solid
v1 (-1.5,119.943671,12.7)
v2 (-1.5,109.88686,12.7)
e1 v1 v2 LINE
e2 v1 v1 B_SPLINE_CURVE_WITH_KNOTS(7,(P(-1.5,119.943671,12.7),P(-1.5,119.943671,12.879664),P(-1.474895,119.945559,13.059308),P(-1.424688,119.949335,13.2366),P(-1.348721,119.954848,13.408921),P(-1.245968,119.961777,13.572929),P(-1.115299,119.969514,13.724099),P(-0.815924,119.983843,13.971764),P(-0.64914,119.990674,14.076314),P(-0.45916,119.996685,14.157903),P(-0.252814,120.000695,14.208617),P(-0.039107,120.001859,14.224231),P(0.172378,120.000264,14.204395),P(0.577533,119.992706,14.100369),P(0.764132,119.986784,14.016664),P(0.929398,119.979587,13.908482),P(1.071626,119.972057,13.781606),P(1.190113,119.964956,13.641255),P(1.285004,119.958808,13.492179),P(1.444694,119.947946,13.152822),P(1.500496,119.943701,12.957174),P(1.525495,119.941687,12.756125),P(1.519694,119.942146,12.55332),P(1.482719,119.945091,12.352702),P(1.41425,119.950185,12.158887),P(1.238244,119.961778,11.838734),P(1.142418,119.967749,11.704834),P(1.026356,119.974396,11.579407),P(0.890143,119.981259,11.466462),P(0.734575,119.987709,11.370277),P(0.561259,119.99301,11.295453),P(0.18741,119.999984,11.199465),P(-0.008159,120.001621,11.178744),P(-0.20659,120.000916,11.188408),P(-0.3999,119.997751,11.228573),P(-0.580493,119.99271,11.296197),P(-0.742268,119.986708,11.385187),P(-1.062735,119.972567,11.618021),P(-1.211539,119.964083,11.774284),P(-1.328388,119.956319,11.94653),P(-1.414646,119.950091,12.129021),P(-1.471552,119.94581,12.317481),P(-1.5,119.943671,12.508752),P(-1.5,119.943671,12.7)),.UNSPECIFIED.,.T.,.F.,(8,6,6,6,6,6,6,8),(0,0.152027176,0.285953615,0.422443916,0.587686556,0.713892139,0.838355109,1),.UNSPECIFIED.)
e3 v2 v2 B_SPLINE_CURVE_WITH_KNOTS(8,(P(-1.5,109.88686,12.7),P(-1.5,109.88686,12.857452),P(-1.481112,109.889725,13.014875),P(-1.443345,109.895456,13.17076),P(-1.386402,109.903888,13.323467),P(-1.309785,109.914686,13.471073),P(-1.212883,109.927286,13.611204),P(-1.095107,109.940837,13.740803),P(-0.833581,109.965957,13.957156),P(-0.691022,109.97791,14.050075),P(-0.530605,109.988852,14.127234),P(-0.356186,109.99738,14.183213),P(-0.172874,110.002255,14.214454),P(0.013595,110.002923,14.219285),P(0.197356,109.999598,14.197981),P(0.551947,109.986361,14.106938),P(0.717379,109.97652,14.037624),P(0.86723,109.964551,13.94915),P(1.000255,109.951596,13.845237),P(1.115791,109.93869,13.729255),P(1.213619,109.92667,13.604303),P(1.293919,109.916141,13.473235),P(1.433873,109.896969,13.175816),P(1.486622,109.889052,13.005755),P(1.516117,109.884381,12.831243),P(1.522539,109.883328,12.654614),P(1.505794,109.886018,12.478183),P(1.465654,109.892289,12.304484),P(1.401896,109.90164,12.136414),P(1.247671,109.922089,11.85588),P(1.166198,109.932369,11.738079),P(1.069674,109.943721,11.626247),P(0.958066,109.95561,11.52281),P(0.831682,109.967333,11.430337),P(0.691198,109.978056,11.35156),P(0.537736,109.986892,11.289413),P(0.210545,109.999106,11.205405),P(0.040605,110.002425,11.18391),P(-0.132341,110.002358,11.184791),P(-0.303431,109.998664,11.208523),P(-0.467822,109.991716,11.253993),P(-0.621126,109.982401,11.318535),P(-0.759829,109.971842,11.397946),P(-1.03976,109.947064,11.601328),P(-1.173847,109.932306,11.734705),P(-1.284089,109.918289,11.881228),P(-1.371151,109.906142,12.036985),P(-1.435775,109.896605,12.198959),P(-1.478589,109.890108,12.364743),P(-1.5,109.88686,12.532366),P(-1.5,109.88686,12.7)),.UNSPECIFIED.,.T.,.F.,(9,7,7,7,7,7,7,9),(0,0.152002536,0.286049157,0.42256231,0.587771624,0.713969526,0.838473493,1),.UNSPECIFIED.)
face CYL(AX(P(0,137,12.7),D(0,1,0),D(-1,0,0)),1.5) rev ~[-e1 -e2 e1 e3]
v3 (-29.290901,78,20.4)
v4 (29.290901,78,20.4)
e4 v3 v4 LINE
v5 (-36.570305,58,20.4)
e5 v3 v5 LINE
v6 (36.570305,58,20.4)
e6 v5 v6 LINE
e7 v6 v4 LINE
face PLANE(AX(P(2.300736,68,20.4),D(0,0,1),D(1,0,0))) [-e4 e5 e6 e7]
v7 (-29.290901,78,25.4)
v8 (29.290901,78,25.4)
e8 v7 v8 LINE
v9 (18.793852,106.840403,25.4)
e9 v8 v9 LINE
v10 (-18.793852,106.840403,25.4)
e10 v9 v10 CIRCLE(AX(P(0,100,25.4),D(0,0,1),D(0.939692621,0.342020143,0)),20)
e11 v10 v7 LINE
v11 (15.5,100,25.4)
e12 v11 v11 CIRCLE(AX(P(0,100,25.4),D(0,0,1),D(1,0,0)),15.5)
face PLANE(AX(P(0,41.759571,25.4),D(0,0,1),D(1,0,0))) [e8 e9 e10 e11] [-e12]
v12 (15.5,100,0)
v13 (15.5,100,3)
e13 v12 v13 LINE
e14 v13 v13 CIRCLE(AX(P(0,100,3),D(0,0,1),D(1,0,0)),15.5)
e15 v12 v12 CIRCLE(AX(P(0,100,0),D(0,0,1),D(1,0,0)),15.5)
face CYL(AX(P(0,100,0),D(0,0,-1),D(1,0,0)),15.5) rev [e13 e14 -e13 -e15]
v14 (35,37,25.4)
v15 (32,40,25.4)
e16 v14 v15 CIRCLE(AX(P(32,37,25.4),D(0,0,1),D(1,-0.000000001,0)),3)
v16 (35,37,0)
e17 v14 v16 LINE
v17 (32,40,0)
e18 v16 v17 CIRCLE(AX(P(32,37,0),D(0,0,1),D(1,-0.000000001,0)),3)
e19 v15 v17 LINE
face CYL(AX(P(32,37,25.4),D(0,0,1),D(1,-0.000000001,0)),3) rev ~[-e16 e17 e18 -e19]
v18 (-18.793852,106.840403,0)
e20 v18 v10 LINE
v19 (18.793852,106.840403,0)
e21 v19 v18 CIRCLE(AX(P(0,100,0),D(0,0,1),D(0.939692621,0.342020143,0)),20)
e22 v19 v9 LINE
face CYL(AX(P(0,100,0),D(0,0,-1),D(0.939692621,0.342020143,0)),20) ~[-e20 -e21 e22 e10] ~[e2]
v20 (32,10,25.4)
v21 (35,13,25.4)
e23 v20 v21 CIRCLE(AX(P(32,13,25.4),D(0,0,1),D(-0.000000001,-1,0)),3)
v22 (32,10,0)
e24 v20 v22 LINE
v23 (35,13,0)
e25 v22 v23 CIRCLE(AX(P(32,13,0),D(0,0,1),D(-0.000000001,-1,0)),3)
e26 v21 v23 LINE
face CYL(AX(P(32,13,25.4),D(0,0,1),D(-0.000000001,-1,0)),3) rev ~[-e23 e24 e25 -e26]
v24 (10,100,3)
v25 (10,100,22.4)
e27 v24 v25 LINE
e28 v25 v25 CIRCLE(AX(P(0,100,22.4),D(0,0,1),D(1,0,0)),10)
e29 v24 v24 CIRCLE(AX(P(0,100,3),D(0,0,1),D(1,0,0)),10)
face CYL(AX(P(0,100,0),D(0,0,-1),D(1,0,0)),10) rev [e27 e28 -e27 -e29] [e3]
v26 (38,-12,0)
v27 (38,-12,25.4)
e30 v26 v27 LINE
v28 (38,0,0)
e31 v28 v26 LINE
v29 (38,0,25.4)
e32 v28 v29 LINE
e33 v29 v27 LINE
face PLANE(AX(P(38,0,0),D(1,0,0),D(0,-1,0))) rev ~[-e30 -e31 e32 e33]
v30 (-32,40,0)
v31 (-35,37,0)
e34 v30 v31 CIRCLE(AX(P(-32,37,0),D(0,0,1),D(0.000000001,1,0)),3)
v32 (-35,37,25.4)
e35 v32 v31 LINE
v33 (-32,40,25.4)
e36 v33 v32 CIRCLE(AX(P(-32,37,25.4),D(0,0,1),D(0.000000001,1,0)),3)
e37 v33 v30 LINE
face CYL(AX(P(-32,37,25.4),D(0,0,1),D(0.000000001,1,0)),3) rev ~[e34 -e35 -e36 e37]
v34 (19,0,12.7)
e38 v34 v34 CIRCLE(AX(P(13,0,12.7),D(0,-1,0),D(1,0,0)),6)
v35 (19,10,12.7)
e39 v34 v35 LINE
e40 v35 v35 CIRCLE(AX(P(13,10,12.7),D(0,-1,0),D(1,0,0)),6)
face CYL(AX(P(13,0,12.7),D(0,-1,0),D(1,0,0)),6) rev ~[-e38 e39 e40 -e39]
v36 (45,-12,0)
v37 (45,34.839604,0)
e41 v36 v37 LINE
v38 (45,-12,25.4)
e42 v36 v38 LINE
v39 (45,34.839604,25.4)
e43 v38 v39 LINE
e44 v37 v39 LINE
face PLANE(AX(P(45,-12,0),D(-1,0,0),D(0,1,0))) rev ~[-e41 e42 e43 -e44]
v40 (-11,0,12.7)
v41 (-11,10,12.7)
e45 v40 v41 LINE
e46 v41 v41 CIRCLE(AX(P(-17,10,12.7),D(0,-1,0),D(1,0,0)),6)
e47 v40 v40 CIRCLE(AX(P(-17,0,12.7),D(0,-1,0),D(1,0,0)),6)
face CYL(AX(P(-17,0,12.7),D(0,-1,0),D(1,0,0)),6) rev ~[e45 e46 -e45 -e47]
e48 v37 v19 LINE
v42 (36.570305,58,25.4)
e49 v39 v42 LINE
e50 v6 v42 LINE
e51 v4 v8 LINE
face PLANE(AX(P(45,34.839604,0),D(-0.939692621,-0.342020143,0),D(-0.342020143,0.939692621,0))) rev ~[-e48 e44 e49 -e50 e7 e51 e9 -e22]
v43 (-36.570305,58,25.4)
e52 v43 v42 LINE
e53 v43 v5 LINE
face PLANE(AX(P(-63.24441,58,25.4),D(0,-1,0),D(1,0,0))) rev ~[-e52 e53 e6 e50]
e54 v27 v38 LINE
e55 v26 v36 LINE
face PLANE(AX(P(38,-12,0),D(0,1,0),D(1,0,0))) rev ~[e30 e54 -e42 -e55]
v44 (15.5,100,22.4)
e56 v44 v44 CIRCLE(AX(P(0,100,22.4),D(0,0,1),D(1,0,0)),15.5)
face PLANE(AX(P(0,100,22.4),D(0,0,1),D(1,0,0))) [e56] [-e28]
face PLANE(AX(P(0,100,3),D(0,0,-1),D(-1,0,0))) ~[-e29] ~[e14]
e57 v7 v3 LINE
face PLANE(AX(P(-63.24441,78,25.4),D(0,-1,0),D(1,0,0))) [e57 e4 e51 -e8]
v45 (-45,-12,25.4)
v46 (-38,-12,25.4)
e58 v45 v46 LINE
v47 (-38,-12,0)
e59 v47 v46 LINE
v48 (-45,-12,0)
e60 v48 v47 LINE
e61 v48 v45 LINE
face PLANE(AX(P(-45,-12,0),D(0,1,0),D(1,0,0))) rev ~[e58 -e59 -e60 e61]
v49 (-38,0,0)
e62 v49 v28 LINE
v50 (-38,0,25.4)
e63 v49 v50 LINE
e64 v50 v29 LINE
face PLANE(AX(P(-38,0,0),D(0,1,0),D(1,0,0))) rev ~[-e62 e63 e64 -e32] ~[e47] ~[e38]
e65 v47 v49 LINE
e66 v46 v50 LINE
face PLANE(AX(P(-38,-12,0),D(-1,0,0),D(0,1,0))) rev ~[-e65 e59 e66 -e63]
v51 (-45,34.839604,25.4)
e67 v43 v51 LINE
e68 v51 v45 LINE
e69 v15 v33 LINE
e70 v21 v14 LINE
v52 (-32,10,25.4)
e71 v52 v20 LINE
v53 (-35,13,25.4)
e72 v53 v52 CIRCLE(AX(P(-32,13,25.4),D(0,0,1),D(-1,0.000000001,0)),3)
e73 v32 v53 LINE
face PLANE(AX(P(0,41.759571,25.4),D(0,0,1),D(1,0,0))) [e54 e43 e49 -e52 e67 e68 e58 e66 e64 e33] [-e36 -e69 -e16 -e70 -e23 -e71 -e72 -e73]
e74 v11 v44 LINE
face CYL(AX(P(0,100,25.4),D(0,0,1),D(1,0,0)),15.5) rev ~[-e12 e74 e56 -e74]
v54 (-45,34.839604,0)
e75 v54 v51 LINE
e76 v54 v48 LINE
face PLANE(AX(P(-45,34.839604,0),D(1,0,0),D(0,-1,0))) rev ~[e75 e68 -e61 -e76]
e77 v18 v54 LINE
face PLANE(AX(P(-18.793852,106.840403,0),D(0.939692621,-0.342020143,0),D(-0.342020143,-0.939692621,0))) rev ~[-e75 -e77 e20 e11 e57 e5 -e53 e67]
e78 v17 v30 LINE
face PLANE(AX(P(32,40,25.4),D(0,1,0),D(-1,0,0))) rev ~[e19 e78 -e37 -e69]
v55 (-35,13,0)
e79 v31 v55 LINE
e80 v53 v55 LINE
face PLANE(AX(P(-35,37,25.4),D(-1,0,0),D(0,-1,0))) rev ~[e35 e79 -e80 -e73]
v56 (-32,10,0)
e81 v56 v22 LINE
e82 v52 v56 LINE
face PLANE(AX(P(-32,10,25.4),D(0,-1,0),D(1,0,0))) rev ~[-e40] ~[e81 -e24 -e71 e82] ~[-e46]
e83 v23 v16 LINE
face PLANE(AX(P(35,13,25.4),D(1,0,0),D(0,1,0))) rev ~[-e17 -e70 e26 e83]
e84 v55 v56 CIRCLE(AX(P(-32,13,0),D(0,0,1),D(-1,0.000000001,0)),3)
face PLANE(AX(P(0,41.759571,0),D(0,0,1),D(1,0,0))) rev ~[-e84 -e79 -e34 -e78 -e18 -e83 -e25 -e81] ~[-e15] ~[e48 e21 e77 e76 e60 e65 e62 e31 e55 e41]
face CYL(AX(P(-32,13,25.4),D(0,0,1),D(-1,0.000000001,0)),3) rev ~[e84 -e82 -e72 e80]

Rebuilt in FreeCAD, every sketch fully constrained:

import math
import FreeCAD as App
import Part
import Sketcher

V = App.Vector
Q = App.Units.Quantity

doc = App.newDocument("Part")
body = doc.addObject("PartDesign::Body", "Body")

# Sketch on XY plane
sketch1 = body.newObject("Sketcher::SketchObject", "Sketch")
sketch1.AttachmentSupport = (doc.getObject("XY_Plane"), [""])
sketch1.MapMode = "FlatFace"
sketch1.addGeometry([
    Part.LineSegment(V(-38, 0, 0), V(38, 0, 0)),  # 0
    Part.LineSegment(V(38, 0, 0), V(38, -12, 0)),  # 1
    Part.LineSegment(V(38, -12, 0), V(45, -12, 0)),  # 2
    Part.LineSegment(V(45, -12, 0), V(45, 35, 0)),  # 3
    Part.LineSegment(V(45, 35, 0), V(19, 107, 0)),  # 4
    Part.ArcOfCircle(Part.Circle(V(0, 100, 0), V(0, 0, 1), 20), math.radians(20), math.radians(160)),  # 5
    Part.LineSegment(V(-19, 107, 0), V(-45, 35, 0)),  # 6
    Part.LineSegment(V(-45, 35, 0), V(-45, -12, 0)),  # 7
    Part.LineSegment(V(-45, -12, 0), V(-38, -12, 0)),  # 8
    Part.LineSegment(V(-38, -12, 0), V(-38, 0, 0)),  # 9
    Part.Circle(V(0, 100, 0), V(0, 0, 1), 10),  # 10
], False)
sketch1.addConstraint([
    Sketcher.Constraint("Coincident", 0, 2, 1, 1),
    Sketcher.Constraint("Coincident", 1, 2, 2, 1),
    Sketcher.Constraint("Coincident", 2, 2, 3, 1),
    Sketcher.Constraint("Coincident", 3, 2, 4, 1),
    Sketcher.Constraint("Tangent", 4, 2, 5, 1),
    Sketcher.Constraint("Tangent", 5, 2, 6, 1),
    Sketcher.Constraint("Coincident", 6, 2, 7, 1),
    Sketcher.Constraint("Coincident", 7, 2, 8, 1),
    Sketcher.Constraint("Coincident", 8, 2, 9, 1),
    Sketcher.Constraint("Coincident", 9, 2, 0, 1),
    Sketcher.Constraint("Horizontal", 0),
    Sketcher.Constraint("Vertical", 1),
    Sketcher.Constraint("Horizontal", 2),
    Sketcher.Constraint("Vertical", 3),
    Sketcher.Constraint("Vertical", 7),
    Sketcher.Constraint("Horizontal", 8),
    Sketcher.Constraint("Vertical", 9),
    Sketcher.Constraint("Coincident", 10, 3, 5, 3),
    Sketcher.Constraint("Symmetric", 0, 2, 9, 2, -1, 1),
    Sketcher.Constraint("Symmetric", 4, 2, 5, 2, -2),
    Sketcher.Constraint("Symmetric", 2, 2, 7, 2, -2),
    Sketcher.Constraint("Diameter", 10, Q("20 mm")),
    Sketcher.Constraint("Radius", 5, Q("20 mm")),
    Sketcher.Constraint("DistanceX", 0, 1, 0, 2, Q("76 mm")),
    Sketcher.Constraint("DistanceX", 2, 1, 2, 2, Q("7 mm")),
    Sketcher.Constraint("DistanceY", 1, 2, 1, 1, Q("12 mm")),
    Sketcher.Constraint("Angle", 4, Q("110 deg")),
    Sketcher.Constraint("DistanceY", -1, 1, 5, 3, Q("100 mm")),
])
pad1 = body.newObject("PartDesign::Pad", "Pad")
pad1.Profile = sketch1
pad1.Length = 25.4

# Sketch on XY plane
sketch2 = body.newObject("Sketcher::SketchObject", "Sketch001")
sketch2.AttachmentSupport = (doc.getObject("XY_Plane"), [""])
sketch2.MapMode = "FlatFace"
sketch2.AttachmentOffset = App.Placement(V(0, 0, 25.4), App.Rotation())
sketch2.addGeometry([
    Part.LineSegment(V(-32, 10, 0), V(32, 10, 0)),  # 0
    Part.ArcOfCircle(Part.Circle(V(32, 13, 0), V(0, 0, 1), 3), math.radians(-90), math.radians(0)),  # 1
    Part.LineSegment(V(35, 13, 0), V(35, 37, 0)),  # 2
    Part.ArcOfCircle(Part.Circle(V(32, 37, 0), V(0, 0, 1), 3), math.radians(0), math.radians(90)),  # 3
    Part.LineSegment(V(32, 40, 0), V(-32, 40, 0)),  # 4
    Part.ArcOfCircle(Part.Circle(V(-32, 37, 0), V(0, 0, 1), 3), math.radians(90), math.radians(180)),  # 5
    Part.LineSegment(V(-35, 37, 0), V(-35, 13, 0)),  # 6
    Part.ArcOfCircle(Part.Circle(V(-32, 13, 0), V(0, 0, 1), 3), math.radians(180), math.radians(270)),  # 7
], False)
sketch2.addConstraint([
    Sketcher.Constraint("Tangent", 0, 2, 1, 1),
    Sketcher.Constraint("Tangent", 1, 2, 2, 1),
    Sketcher.Constraint("Tangent", 2, 2, 3, 1),
    Sketcher.Constraint("Tangent", 3, 2, 4, 1),
    Sketcher.Constraint("Tangent", 4, 2, 5, 1),
    Sketcher.Constraint("Tangent", 5, 2, 6, 1),
    Sketcher.Constraint("Tangent", 6, 2, 7, 1),
    Sketcher.Constraint("Tangent", 7, 2, 0, 1),
    Sketcher.Constraint("Horizontal", 0),
    Sketcher.Constraint("Vertical", 2),
    Sketcher.Constraint("Horizontal", 4),
    Sketcher.Constraint("Vertical", 6),
    Sketcher.Constraint("Equal", 1, 3),
    Sketcher.Constraint("Equal", 3, 5),
    Sketcher.Constraint("Equal", 5, 7),
    Sketcher.Constraint("Radius", 1, Q("3 mm")),
    Sketcher.Constraint("DistanceX", 0, 1, 0, 2, Q("64 mm")),
    Sketcher.Constraint("DistanceY", 2, 1, 2, 2, Q("24 mm")),
    Sketcher.Constraint("DistanceX", -1, 1, 1, 3, Q("32 mm")),
    Sketcher.Constraint("DistanceY", -1, 1, 1, 3, Q("13 mm")),
])
pocket1 = body.newObject("PartDesign::Pocket", "Pocket")
pocket1.Profile = sketch2
pocket1.Type = "ThroughAll"

# Sketch on XZ plane
sketch3 = body.newObject("Sketcher::SketchObject", "Sketch002")
sketch3.AttachmentSupport = (doc.getObject("XZ_Plane"), [""])
sketch3.MapMode = "FlatFace"
sketch3.addGeometry(Part.Circle(V(13, 13, 0), V(0, 0, 1), 6), False)
sketch3.addConstraint([
    Sketcher.Constraint("Diameter", 0, Q("12 mm")),
    Sketcher.Constraint("DistanceX", -1, 1, 0, 3, Q("13 mm")),
    Sketcher.Constraint("DistanceY", -1, 1, 0, 3, Q("12.7 mm")),
])
pocket2 = body.newObject("PartDesign::Pocket", "Pocket001")
pocket2.Profile = sketch3
pocket2.Type = "UpToFirst"

# Sketch on XZ plane
sketch4 = body.newObject("Sketcher::SketchObject", "Sketch003")
sketch4.AttachmentSupport = (doc.getObject("XZ_Plane"), [""])
sketch4.MapMode = "FlatFace"
sketch4.addGeometry(Part.Circle(V(-17, 13, 0), V(0, 0, 1), 6), False)
sketch4.addConstraint([
    Sketcher.Constraint("Diameter", 0, Q("12 mm")),
    Sketcher.Constraint("DistanceX", 0, 3, -1, 1, Q("17 mm")),
    Sketcher.Constraint("DistanceY", -1, 1, 0, 3, Q("12.7 mm")),
])
pocket3 = body.newObject("PartDesign::Pocket", "Pocket002")
pocket3.Profile = sketch4
pocket3.Type = "UpToFirst"

# Sketch on XZ plane
sketch5 = body.newObject("Sketcher::SketchObject", "Sketch004")
sketch5.AttachmentSupport = (doc.getObject("XZ_Plane"), [""])
sketch5.MapMode = "FlatFace"
sketch5.AttachmentOffset = App.Placement(V(0, 0, -137), App.Rotation())
sketch5.addGeometry(Part.Circle(V(0, 12.7, 0), V(0, 0, 1), 1.5), False)
sketch5.addConstraint([
    Sketcher.Constraint("PointOnObject", 0, 3, -2),
    Sketcher.Constraint("Diameter", 0, Q("3 mm")),
    Sketcher.Constraint("DistanceY", -1, 1, 0, 3, Q("12.7 mm")),
])
pocket4 = body.newObject("PartDesign::Pocket", "Pocket003")
pocket4.Profile = sketch5
pocket4.Length = 27.11314
pocket4.Reversed = True

# Sketch on XY plane
sketch6 = body.newObject("Sketcher::SketchObject", "Sketch005")
sketch6.AttachmentSupport = (doc.getObject("XY_Plane"), [""])
sketch6.MapMode = "FlatFace"
sketch6.AttachmentOffset = App.Placement(V(0, 0, 25.4), App.Rotation())
sketch6.addGeometry([
    Part.LineSegment(V(-63, 78, 0), V(-63, 58, 0)),
    Part.LineSegment(V(-63, 58, 0), V(68, 58, 0)),
    Part.LineSegment(V(68, 58, 0), V(68, 78, 0)),
    Part.LineSegment(V(68, 78, 0), V(-63, 78, 0)),
], False)
sketch6.addConstraint([
    Sketcher.Constraint("Coincident", 0, 2, 1, 1),
    Sketcher.Constraint("Coincident", 1, 2, 2, 1),
    Sketcher.Constraint("Coincident", 2, 2, 3, 1),
    Sketcher.Constraint("Coincident", 3, 2, 0, 1),
    Sketcher.Constraint("Vertical", 0),
    Sketcher.Constraint("Horizontal", 1),
    Sketcher.Constraint("Vertical", 2),
    Sketcher.Constraint("Horizontal", 3),
    Sketcher.Constraint("DistanceY", 0, 2, 0, 1, Q("20 mm")),
    Sketcher.Constraint("DistanceY", -1, 1, 0, 2, Q("58 mm")),
    Sketcher.Constraint("DistanceX", 1, 1, 1, 2, Q("131.090292 mm")),
    Sketcher.Constraint("DistanceX", 0, 2, -1, 1, Q("63.24441 mm")),
])
pocket5 = body.newObject("PartDesign::Pocket", "Pocket004")
pocket5.Profile = sketch6
pocket5.Length = 5

# Sketch on XY plane
sketch7 = body.newObject("Sketcher::SketchObject", "Sketch006")
sketch7.AttachmentSupport = (doc.getObject("XY_Plane"), [""])
sketch7.MapMode = "FlatFace"
sketch7.AttachmentOffset = App.Placement(V(0, 0, 25.4), App.Rotation())
sketch7.addGeometry([
    Part.Circle(V(0, 100, 0), V(0, 0, 1), 16),
    Part.Circle(V(0, 100, 0), V(0, 0, 1), 10),
], False)
sketch7.addConstraint([
    Sketcher.Constraint("Coincident", 1, 3, 0, 3),
    Sketcher.Constraint("PointOnObject", 0, 3, -2),
    Sketcher.Constraint("Diameter", 0, Q("31 mm")),
    Sketcher.Constraint("Diameter", 1, Q("20 mm")),
    Sketcher.Constraint("DistanceY", -1, 1, 0, 3, Q("100 mm")),
])
pocket6 = body.newObject("PartDesign::Pocket", "Pocket005")
pocket6.Profile = sketch7
pocket6.Length = 3
doc.recompute()

datumplane = body.newObject("PartDesign::Plane", "DatumPlane")
datumplane.AttachmentSupport = (doc.getObject("XY_Plane"), [""])
datumplane.MapMode = "FlatFace"
datumplane.AttachmentOffset = App.Placement(V(0, 0, 12.7), App.Rotation())
mirrored = body.newObject("PartDesign::Mirrored", "Mirrored")
mirrored.Originals = [pocket6]
mirrored.MirrorPlane = (datumplane, [""])
body.Tip = mirrored

doc.recompute()
